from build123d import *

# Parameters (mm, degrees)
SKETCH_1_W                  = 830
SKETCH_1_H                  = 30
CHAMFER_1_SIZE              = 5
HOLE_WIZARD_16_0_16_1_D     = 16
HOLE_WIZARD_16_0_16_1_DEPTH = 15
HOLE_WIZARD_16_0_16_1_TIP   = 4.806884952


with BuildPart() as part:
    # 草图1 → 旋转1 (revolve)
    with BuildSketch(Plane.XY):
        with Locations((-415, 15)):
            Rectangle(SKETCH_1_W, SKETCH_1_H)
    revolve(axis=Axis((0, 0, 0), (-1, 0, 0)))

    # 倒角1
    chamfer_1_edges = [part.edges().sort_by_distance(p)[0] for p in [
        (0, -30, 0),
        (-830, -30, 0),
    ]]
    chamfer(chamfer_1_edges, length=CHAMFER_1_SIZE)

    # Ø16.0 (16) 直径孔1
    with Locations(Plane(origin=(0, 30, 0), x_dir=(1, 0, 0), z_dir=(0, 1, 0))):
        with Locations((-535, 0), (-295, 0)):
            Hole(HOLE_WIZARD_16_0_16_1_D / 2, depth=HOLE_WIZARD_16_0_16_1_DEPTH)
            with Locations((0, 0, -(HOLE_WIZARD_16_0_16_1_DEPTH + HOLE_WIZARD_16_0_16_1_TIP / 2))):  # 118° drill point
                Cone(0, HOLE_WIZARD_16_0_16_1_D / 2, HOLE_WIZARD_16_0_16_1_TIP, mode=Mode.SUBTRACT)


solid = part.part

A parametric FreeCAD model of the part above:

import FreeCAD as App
import Part
import Sketcher

V = App.Vector


def edges_at(feature, points):
    """Names of the edges that pass closest to the given points."""
    edges = feature.Shape.Edges
    near = lambda p: min(range(len(edges)), key=lambda i: edges[i].distToShape(Part.Vertex(*p))[0])
    return sorted({f"Edge{near(p) + 1}" for p in points})

doc = App.newDocument("Part")
body = doc.addObject("PartDesign::Body", "Body")

sketch1 = body.newObject("Sketcher::SketchObject", "Sketch")
sketch1.AttachmentSupport = (doc.getObject("XY_Plane"), [""])
sketch1.MapMode = "FlatFace"
sketch1.addGeometry([
    Part.LineSegment(V(-830, 30, 0), V(-830, 0, 0)),
    Part.LineSegment(V(-830, 0, 0), V(0, 0, 0)),
    Part.LineSegment(V(0, 0, 0), V(0, 30, 0)),
    Part.LineSegment(V(0, 30, 0), V(-830, 30, 0)),
], False)
sketch1.addConstraint([
    Sketcher.Constraint("Coincident", 0, 2, 1, 1),
    Sketcher.Constraint("Coincident", 1, 2, 2, 1),
    Sketcher.Constraint("Coincident", 2, 2, 3, 1),
    Sketcher.Constraint("Coincident", 3, 2, 0, 1),
    Sketcher.Constraint("Vertical", 0),
    Sketcher.Constraint("Horizontal", 1),
    Sketcher.Constraint("Vertical", 2),
    Sketcher.Constraint("Horizontal", 3),
    Sketcher.Constraint("Coincident", 1, 2, -1, 1),
    Sketcher.Constraint("DistanceX", 1, 1, 1, 2, 830.0),
    Sketcher.Constraint("DistanceY", 0, 2, 0, 1, 30.0),
])
revolution = body.newObject("PartDesign::Revolution", "Revolution")
revolution.Profile = sketch1
revolution.ReferenceAxis = (sketch1, ["H_Axis"])
revolution.Angle = 360
doc.recompute()

chamfer = body.newObject("PartDesign::Chamfer", "Chamfer")
chamfer.Base = (revolution, edges_at(revolution, [(0, -30, 0), (-830, -30, 0)]))
chamfer.Size = 5

sketch2 = body.newObject("Sketcher::SketchObject", "Sketch001")
sketch2.AttachmentSupport = (doc.getObject("XZ_Plane"), [""])
sketch2.MapMode = "FlatFace"
sketch2.AttachmentOffset = App.Placement(V(0, 0, -30), App.Rotation())
sketch2.addGeometry([
    Part.Circle(V(-535, 0, 0), V(0, 0, 1), 8),
    Part.Circle(V(-295, 0, 0), V(0, 0, 1), 8),
], False)
sketch2.addConstraint([
    Sketcher.Constraint("Equal", 0, 1),
    Sketcher.Constraint("PointOnObject", 0, 3, -1),
    Sketcher.Constraint("PointOnObject", 1, 3, -1),
    Sketcher.Constraint("Diameter", 0, 16.0),
    Sketcher.Constraint("DistanceX", 0, 3, -1, 1, 535.0),
    Sketcher.Constraint("DistanceX", 1, 3, -1, 1, 295.0),
])
doc.recompute()
hole = body.newObject("PartDesign::Hole", "Hole")
hole.Profile = sketch2
hole.ThreadType = "None"
hole.Diameter = 16
hole.DepthType = "Dimension"
hole.Depth = 15
hole.DrillPoint = "Angled"
hole.DrillPointAngle = 118
hole.Reversed = True

doc.recompute()
